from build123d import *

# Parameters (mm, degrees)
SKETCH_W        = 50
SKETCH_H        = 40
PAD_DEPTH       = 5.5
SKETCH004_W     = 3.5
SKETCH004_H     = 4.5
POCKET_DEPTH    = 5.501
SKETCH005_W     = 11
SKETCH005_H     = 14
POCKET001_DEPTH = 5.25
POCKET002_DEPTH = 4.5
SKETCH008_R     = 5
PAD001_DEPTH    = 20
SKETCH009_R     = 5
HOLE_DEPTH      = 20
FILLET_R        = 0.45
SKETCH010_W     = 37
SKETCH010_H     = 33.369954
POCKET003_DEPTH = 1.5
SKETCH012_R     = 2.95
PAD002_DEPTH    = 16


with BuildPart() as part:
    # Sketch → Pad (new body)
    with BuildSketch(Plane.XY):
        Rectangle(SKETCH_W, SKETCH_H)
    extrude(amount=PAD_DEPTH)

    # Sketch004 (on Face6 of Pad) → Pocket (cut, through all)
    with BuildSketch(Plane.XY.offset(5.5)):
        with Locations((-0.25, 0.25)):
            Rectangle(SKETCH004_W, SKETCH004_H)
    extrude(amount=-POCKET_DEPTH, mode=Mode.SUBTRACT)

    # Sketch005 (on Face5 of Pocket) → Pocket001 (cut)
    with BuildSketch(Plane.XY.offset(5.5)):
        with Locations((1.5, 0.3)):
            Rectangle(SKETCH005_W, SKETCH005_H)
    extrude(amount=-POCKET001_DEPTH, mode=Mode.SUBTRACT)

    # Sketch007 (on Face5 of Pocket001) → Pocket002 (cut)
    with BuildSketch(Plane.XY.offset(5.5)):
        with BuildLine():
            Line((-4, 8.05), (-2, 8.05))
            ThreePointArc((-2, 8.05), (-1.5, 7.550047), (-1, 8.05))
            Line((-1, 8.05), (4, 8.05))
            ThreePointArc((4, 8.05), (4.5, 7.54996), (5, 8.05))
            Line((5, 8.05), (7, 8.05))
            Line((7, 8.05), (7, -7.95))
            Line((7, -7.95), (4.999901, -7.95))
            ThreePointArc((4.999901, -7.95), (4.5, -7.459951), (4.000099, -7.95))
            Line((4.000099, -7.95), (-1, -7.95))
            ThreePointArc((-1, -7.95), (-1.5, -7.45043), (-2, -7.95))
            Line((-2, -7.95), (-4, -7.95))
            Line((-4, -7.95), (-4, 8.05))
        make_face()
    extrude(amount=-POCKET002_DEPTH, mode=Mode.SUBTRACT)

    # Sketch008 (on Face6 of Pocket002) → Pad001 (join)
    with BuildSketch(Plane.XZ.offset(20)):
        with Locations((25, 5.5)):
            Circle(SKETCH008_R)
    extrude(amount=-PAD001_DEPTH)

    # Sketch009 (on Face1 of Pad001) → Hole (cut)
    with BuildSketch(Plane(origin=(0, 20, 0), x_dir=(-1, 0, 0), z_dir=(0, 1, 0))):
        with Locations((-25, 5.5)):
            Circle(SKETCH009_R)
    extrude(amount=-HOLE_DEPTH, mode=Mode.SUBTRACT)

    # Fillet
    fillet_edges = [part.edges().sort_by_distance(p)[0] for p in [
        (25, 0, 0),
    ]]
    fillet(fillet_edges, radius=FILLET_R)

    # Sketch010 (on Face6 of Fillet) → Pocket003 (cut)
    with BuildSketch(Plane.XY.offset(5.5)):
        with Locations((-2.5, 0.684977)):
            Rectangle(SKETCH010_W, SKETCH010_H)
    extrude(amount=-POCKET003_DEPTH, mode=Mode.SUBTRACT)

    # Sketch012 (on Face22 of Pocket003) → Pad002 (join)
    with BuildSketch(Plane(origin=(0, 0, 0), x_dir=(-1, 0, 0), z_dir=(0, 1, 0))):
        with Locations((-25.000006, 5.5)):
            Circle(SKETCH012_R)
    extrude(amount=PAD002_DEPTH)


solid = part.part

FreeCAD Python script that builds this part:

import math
import FreeCAD as App
import Part
import Sketcher
from FreeCAD import Vector


def edges_at(feature, points):
    """Names of the edges that pass closest to the given points."""
    edges = feature.Shape.Edges
    near = lambda p: min(range(len(edges)), key=lambda i: edges[i].distToShape(Part.Vertex(*p))[0])
    return sorted({f"Edge{near(p) + 1}" for p in points})

doc = App.newDocument("Part")
params = doc.addObject("Spreadsheet::Sheet", "Params")
for row, (alias, value) in enumerate([
    ("sketch1_width", "50 mm"),
    ("sketch1_height", "40 mm"),
    ("pad1_length", "5.5 mm"),
    ("sketch2_width", "3.5 mm"),
    ("sketch2_height", "4.5 mm"),
    ("sketch3_width", "11 mm"),
    ("sketch3_height", "14 mm"),
    ("pocket2_length", "5.25 mm"),
    ("sketch4_radius", "0.5 mm"),
    ("sketch4_width", "2 mm"),
    ("sketch4_width2", "5 mm"),
    ("sketch4_height", "16 mm"),
    ("pocket3_length", "4.5 mm"),
    ("sketch5_diameter", "10 mm"),
    ("pad2_length", "20 mm"),
    ("sketch6_diameter", "10 mm"),
    ("pocket4_length", "20 mm"),
    ("fillet_radius", "0.45 mm"),
    ("sketch7_width", "37 mm"),
    ("pocket5_length", "1.5 mm"),
    ("sketch8_diameter", "5.9 mm"),
    ("pad3_length", "16 mm"),
], start=1):
    params.set(f"A{row}", alias)
    params.set(f"B{row}", "=" + value)
    params.setAlias(f"B{row}", alias)

body = doc.addObject("PartDesign::Body", "Body")

sketch1 = doc.addObject("Sketcher::SketchObject", "Sketch")
body.addObject(sketch1)
sketch1.AttachmentSupport = (doc.XY_Plane, [""])
sketch1.MapMode = "FlatFace"
sketch1.addGeometry(Part.LineSegment(Vector(-25, 20, 0), Vector(-25, -20, 0)), False)
sketch1.addGeometry(Part.LineSegment(Vector(-25, -20, 0), Vector(25, -20, 0)), False)
sketch1.addGeometry(Part.LineSegment(Vector(25, -20, 0), Vector(25, 20, 0)), False)
sketch1.addGeometry(Part.LineSegment(Vector(25, 20, 0), Vector(-25, 20, 0)), False)
sketch1.addConstraint(Sketcher.Constraint("Coincident", 0, 2, 1, 1))
sketch1.addConstraint(Sketcher.Constraint("Coincident", 1, 2, 2, 1))
sketch1.addConstraint(Sketcher.Constraint("Coincident", 2, 2, 3, 1))
sketch1.addConstraint(Sketcher.Constraint("Coincident", 3, 2, 0, 1))
sketch1.addConstraint(Sketcher.Constraint("Vertical", 0))
sketch1.addConstraint(Sketcher.Constraint("Horizontal", 1))
sketch1.addConstraint(Sketcher.Constraint("Vertical", 2))
sketch1.addConstraint(Sketcher.Constraint("Horizontal", 3))
sketch1.addConstraint(Sketcher.Constraint("Symmetric", 0, 2, 2, 2, -1, 1))
sketch1.addConstraint(Sketcher.Constraint("DistanceX", 1, 1, 1, 2, 50.0))
sketch1.addConstraint(Sketcher.Constraint("DistanceY", 0, 2, 0, 1, 40.0))
sketch1.setExpression("Constraints[9]", "Params.sketch1_width")
sketch1.setExpression("Constraints[10]", "Params.sketch1_height")
pad1 = doc.addObject("PartDesign::Pad", "Pad")
body.addObject(pad1)
pad1.Profile = sketch1
pad1.setExpression("Length", "Params.pad1_length")

sketch2 = doc.addObject("Sketcher::SketchObject", "Sketch001")
body.addObject(sketch2)
sketch2.AttachmentSupport = (doc.XY_Plane, [""])
sketch2.MapMode = "FlatFace"
sketch2.AttachmentOffset = App.Placement(Vector(0, 0, 5.5), App.Rotation())
sketch2.addGeometry(Part.LineSegment(Vector(-2, 2.5, 0), Vector(-2, -2, 0)), False)
sketch2.addGeometry(Part.LineSegment(Vector(-2, -2, 0), Vector(1.5, -2, 0)), False)
sketch2.addGeometry(Part.LineSegment(Vector(1.5, -2, 0), Vector(1.5, 2.5, 0)), False)
sketch2.addGeometry(Part.LineSegment(Vector(1.5, 2.5, 0), Vector(-2, 2.5, 0)), False)
sketch2.addConstraint(Sketcher.Constraint("Coincident", 0, 2, 1, 1))
sketch2.addConstraint(Sketcher.Constraint("Coincident", 1, 2, 2, 1))
sketch2.addConstraint(Sketcher.Constraint("Coincident", 2, 2, 3, 1))
sketch2.addConstraint(Sketcher.Constraint("Coincident", 3, 2, 0, 1))
sketch2.addConstraint(Sketcher.Constraint("Vertical", 0))
sketch2.addConstraint(Sketcher.Constraint("Horizontal", 1))
sketch2.addConstraint(Sketcher.Constraint("Vertical", 2))
sketch2.addConstraint(Sketcher.Constraint("Horizontal", 3))
sketch2.addConstraint(Sketcher.Constraint("DistanceX", 1, 1, 1, 2, 3.5))
sketch2.addConstraint(Sketcher.Constraint("DistanceY", 0, 2, 0, 1, 4.5))
sketch2.addConstraint(Sketcher.Constraint("DistanceX", 0, 2, -1, 1, 2.0))
sketch2.addConstraint(Sketcher.Constraint("DistanceY", 0, 2, -1, 1, 2.0))
sketch2.setExpression("Constraints[8]", "Params.sketch2_width")
sketch2.setExpression("Constraints[9]", "Params.sketch2_height")
pocket1 = doc.addObject("PartDesign::Pocket", "Pocket")
body.addObject(pocket1)
pocket1.Profile = sketch2
pocket1.Type = "ThroughAll"

sketch3 = doc.addObject("Sketcher::SketchObject", "Sketch002")
body.addObject(sketch3)
sketch3.AttachmentSupport = (doc.XY_Plane, [""])
sketch3.MapMode = "FlatFace"
sketch3.AttachmentOffset = App.Placement(Vector(0, 0, 5.5), App.Rotation())
sketch3.addGeometry(Part.LineSegment(Vector(-4, 7, 0), Vector(-4, -7, 0)), False)
sketch3.addGeometry(Part.LineSegment(Vector(-4, -7, 0), Vector(7, -7, 0)), False)
sketch3.addGeometry(Part.LineSegment(Vector(7, -7, 0), Vector(7, 7, 0)), False)
sketch3.addGeometry(Part.LineSegment(Vector(7, 7, 0), Vector(-4, 7, 0)), False)
sketch3.addConstraint(Sketcher.Constraint("Coincident", 0, 2, 1, 1))
sketch3.addConstraint(Sketcher.Constraint("Coincident", 1, 2, 2, 1))
sketch3.addConstraint(Sketcher.Constraint("Coincident", 2, 2, 3, 1))
sketch3.addConstraint(Sketcher.Constraint("Coincident", 3, 2, 0, 1))
sketch3.addConstraint(Sketcher.Constraint("Vertical", 0))
sketch3.addConstraint(Sketcher.Constraint("Horizontal", 1))
sketch3.addConstraint(Sketcher.Constraint("Vertical", 2))
sketch3.addConstraint(Sketcher.Constraint("Horizontal", 3))
sketch3.addConstraint(Sketcher.Constraint("DistanceX", 1, 1, 1, 2, 11.0))
sketch3.addConstraint(Sketcher.Constraint("DistanceY", 0, 2, 0, 1, 14.0))
sketch3.addConstraint(Sketcher.Constraint("DistanceX", 0, 2, -1, 1, 4.0))
sketch3.addConstraint(Sketcher.Constraint("DistanceY", 0, 2, -1, 1, 6.7))
sketch3.setExpression("Constraints[8]", "Params.sketch3_width")
sketch3.setExpression("Constraints[9]", "Params.sketch3_height")
pocket2 = doc.addObject("PartDesign::Pocket", "Pocket001")
body.addObject(pocket2)
pocket2.Profile = sketch3
pocket2.setExpression("Length", "Params.pocket2_length")

sketch4 = doc.addObject("Sketcher::SketchObject", "Sketch003")
body.addObject(sketch4)
sketch4.AttachmentSupport = (doc.XY_Plane, [""])
sketch4.MapMode = "FlatFace"
sketch4.AttachmentOffset = App.Placement(Vector(0, 0, 5.5), App.Rotation())
sketch4.addGeometry(Part.LineSegment(Vector(-2, 8.1, 0), Vector(-4, 8.1, 0)), False)
sketch4.addGeometry(Part.LineSegment(Vector(-4, 8.1, 0), Vector(-4, -8, 0)), False)
sketch4.addGeometry(Part.LineSegment(Vector(-4, -8, 0), Vector(-2, -8, 0)), False)
sketch4.addGeometry(Part.ArcOfCircle(Part.Circle(Vector(-1.5, -8, 0), Vector(0, 0, 1), 0.5), math.radians(0), math.radians(180)), False)
sketch4.addGeometry(Part.LineSegment(Vector(-1, -8, 0), Vector(4, -8, 0)), False)
sketch4.addGeometry(Part.ArcOfCircle(Part.Circle(Vector(4.5, -8, 0), Vector(0, 0, 1), 0.5), math.radians(1), math.radians(179)), False)
sketch4.addGeometry(Part.LineSegment(Vector(5, -8, 0), Vector(7, -8, 0)), False)
sketch4.addGeometry(Part.LineSegment(Vector(7, -8, 0), Vector(7, 8.1, 0)), False)
sketch4.addGeometry(Part.LineSegment(Vector(7, 8.1, 0), Vector(5, 8.1, 0)), False)
sketch4.addGeometry(Part.ArcOfCircle(Part.Circle(Vector(4.5, 8, 0), Vector(0, 0, 1), 0.5), math.radians(180), math.radians(360)), False)
sketch4.addGeometry(Part.LineSegment(Vector(4, 8.1, 0), Vector(-1, 8.1, 0)), False)
sketch4.addGeometry(Part.ArcOfCircle(Part.Circle(Vector(-1.5, 8.1, 0), Vector(0, 0, 1), 0.5), math.radians(-180), math.radians(0)), False)
sketch4.addConstraint(Sketcher.Constraint("Coincident", 0, 2, 1, 1))
sketch4.addConstraint(Sketcher.Constraint("Coincident", 1, 2, 2, 1))
sketch4.addConstraint(Sketcher.Constraint("Coincident", 2, 2, 3, 2))
sketch4.addConstraint(Sketcher.Constraint("Coincident", 3, 1, 4, 1))
sketch4.addConstraint(Sketcher.Constraint("Coincident", 4, 2, 5, 2))
sketch4.addConstraint(Sketcher.Constraint("Coincident", 5, 1, 6, 1))
sketch4.addConstraint(Sketcher.Constraint("Coincident", 6, 2, 7, 1))
sketch4.addConstraint(Sketcher.Constraint("Coincident", 7, 2, 8, 1))
sketch4.addConstraint(Sketcher.Constraint("Coincident", 8, 2, 9, 2))
sketch4.addConstraint(Sketcher.Constraint("Coincident", 9, 1, 10, 1))
sketch4.addConstraint(Sketcher.Constraint("Coincident", 10, 2, 11, 2))
sketch4.addConstraint(Sketcher.Constraint("Coincident", 11, 1, 0, 1))
sketch4.addConstraint(Sketcher.Constraint("Horizontal", 0))
sketch4.addConstraint(Sketcher.Constraint("Vertical", 1))
sketch4.addConstraint(Sketcher.Constraint("Horizontal", 2))
sketch4.addConstraint(Sketcher.Constraint("Horizontal", 4))
sketch4.addConstraint(Sketcher.Constraint("Horizontal", 6))
sketch4.addConstraint(Sketcher.Constraint("Vertical", 7))
sketch4.addConstraint(Sketcher.Constraint("Horizontal", 8))
sketch4.addConstraint(Sketcher.Constraint("Horizontal", 10))
sketch4.addConstraint(Sketcher.Constraint("Equal", 3, 5))
sketch4.addConstraint(Sketcher.Constraint("Equal", 5, 9))
sketch4.addConstraint(Sketcher.Constraint("Equal", 9, 11))
sketch4.addConstraint(Sketcher.Constraint("Symmetric", 0, 2, 9, 1, -2))
sketch4.addConstraint(Sketcher.Constraint("Horizontal", 2, 2, 3, 1))
sketch4.addConstraint(Sketcher.Constraint("Horizontal", 4, 2, 5, 1))
sketch4.addConstraint(Sketcher.Constraint("Horizontal", 0, 2, 7, 2))
sketch4.addConstraint(Sketcher.Constraint("Vertical", 5, 3, 9, 3))
sketch4.addConstraint(Sketcher.Constraint("Vertical", 3, 3, 11, 3))
sketch4.addConstraint(Sketcher.Constraint("Equal", 2, 8))
sketch4.addConstraint(Sketcher.Constraint("Radius", 3, 0.5))
sketch4.addConstraint(Sketcher.Constraint("DistanceX", 0, 2, 0, 1, 2.0))
sketch4.addConstraint(Sketcher.Constraint("DistanceX", 10, 2, 10, 1, 5.0))
sketch4.addConstraint(Sketcher.Constraint("DistanceY", 1, 2, 1, 1, 16.0))
sketch4.addConstraint(Sketcher.Constraint("DistanceY", -1, 1, 0, 2, 8.05))
sketch4.addConstraint(Sketcher.Constraint("DistanceY", 5, 3, 11, 3, 16.009998))
sketch4.addConstraint(Sketcher.Constraint("DistanceX", 4, 1, 4, 2, 5.000099))
sketch4.addConstraint(Sketcher.Constraint("DistanceY", 3, 3, -1, 1, 7.95043))
sketch4.addConstraint(Sketcher.Constraint("DistanceY", -1, 1, 9, 3, 8.04996))
sketch4.setExpression("Constraints[30]", "Params.sketch4_radius")
sketch4.setExpression("Constraints[31]", "Params.sketch4_width")
sketch4.setExpression("Constraints[32]", "Params.sketch4_width2")
sketch4.setExpression("Constraints[33]", "Params.sketch4_height")
pocket3 = doc.addObject("PartDesign::Pocket", "Pocket002")
body.addObject(pocket3)
pocket3.Profile = sketch4
pocket3.setExpression("Length", "Params.pocket3_length")

sketch5 = doc.addObject("Sketcher::SketchObject", "Sketch004")
body.addObject(sketch5)
sketch5.AttachmentSupport = (doc.XZ_Plane, [""])
sketch5.MapMode = "FlatFace"
sketch5.AttachmentOffset = App.Placement(Vector(0, 0, 20), App.Rotation())
sketch5.addGeometry(Part.Circle(Vector(25, 6, 0), Vector(0, 0, 1), 5), False)
sketch5.addConstraint(Sketcher.Constraint("Diameter", 0, 10.0))
sketch5.addConstraint(Sketcher.Constraint("DistanceX", -1, 1, 0, 3, 25.0))
sketch5.addConstraint(Sketcher.Constraint("DistanceY", -1, 1, 0, 3, 5.5))
sketch5.setExpression("Constraints[0]", "Params.sketch5_diameter")
pad2 = doc.addObject("PartDesign::Pad", "Pad001")
body.addObject(pad2)
pad2.Profile = sketch5
pad2.setExpression("Length", "Params.pad2_length")
pad2.Reversed = True

sketch6 = doc.addObject("Sketcher::SketchObject", "Sketch005")
body.addObject(sketch6)
sketch6.AttachmentSupport = (doc.XZ_Plane, [""])
sketch6.MapMode = "FlatFace"
sketch6.AttachmentOffset = App.Placement(Vector(0, 0, -20), App.Rotation())
sketch6.addGeometry(Part.Circle(Vector(25, 6, 0), Vector(0, 0, 1), 5), False)
sketch6.addConstraint(Sketcher.Constraint("Diameter", 0, 10.0))
sketch6.addConstraint(Sketcher.Constraint("DistanceX", -1, 1, 0, 3, 25.0))
sketch6.addConstraint(Sketcher.Constraint("DistanceY", -1, 1, 0, 3, 5.5))
sketch6.setExpression("Constraints[0]", "Params.sketch6_diameter")
pocket4 = doc.addObject("PartDesign::Pocket", "Pocket003")
body.addObject(pocket4)
pocket4.Profile = sketch6
pocket4.setExpression("Length", "Params.pocket4_length")
pocket4.Reversed = True
doc.recompute()

fillet = doc.addObject("PartDesign::Fillet", "Fillet")
body.addObject(fillet)
fillet.Base = (pocket4, edges_at(pocket4, [(25, 0, 0)]))
fillet.setExpression("Radius", "Params.fillet_radius")

sketch7 = doc.addObject("Sketcher::SketchObject", "Sketch006")
body.addObject(sketch7)
sketch7.AttachmentSupport = (doc.XY_Plane, [""])
sketch7.MapMode = "FlatFace"
sketch7.AttachmentOffset = App.Placement(Vector(0, 0, 5.5), App.Rotation())
sketch7.addGeometry(Part.LineSegment(Vector(-21, 17, 0), Vector(-21, -16, 0)), False)
sketch7.addGeometry(Part.LineSegment(Vector(-21, -16, 0), Vector(16, -16, 0)), False)
sketch7.addGeometry(Part.LineSegment(Vector(16, -16, 0), Vector(16, 17, 0)), False)
sketch7.addGeometry(Part.LineSegment(Vector(16, 17, 0), Vector(-21, 17, 0)), False)
sketch7.addConstraint(Sketcher.Constraint("Coincident", 0, 2, 1, 1))
sketch7.addConstraint(Sketcher.Constraint("Coincident", 1, 2, 2, 1))
sketch7.addConstraint(Sketcher.Constraint("Coincident", 2, 2, 3, 1))
sketch7.addConstraint(Sketcher.Constraint("Coincident", 3, 2, 0, 1))
sketch7.addConstraint(Sketcher.Constraint("Vertical", 0))
sketch7.addConstraint(Sketcher.Constraint("Horizontal", 1))
sketch7.addConstraint(Sketcher.Constraint("Vertical", 2))
sketch7.addConstraint(Sketcher.Constraint("Horizontal", 3))
sketch7.addConstraint(Sketcher.Constraint("DistanceX", 1, 1, 1, 2, 37.0))
sketch7.addConstraint(Sketcher.Constraint("DistanceX", 0, 2, -1, 1, 21.0))
sketch7.addConstraint(Sketcher.Constraint("DistanceY", 0, 2, -1, 1, 16.0))
sketch7.addConstraint(Sketcher.Constraint("DistanceY", 0, 2, 0, 1, 33.369954))
sketch7.setExpression("Constraints[8]", "Params.sketch7_width")
pocket5 = doc.addObject("PartDesign::Pocket", "Pocket004")
body.addObject(pocket5)
pocket5.Profile = sketch7
pocket5.setExpression("Length", "Params.pocket5_length")

sketch8 = doc.addObject("Sketcher::SketchObject", "Sketch007")
body.addObject(sketch8)
sketch8.AttachmentSupport = (doc.XZ_Plane, [""])
sketch8.MapMode = "FlatFace"
sketch8.addGeometry(Part.Circle(Vector(25, 5.5, 0), Vector(0, 0, 1), 3), False)
sketch8.addConstraint(Sketcher.Constraint("Diameter", 0, 5.9))
sketch8.addConstraint(Sketcher.Constraint("DistanceY", -1, 1, 0, 3, 5.5))
sketch8.addConstraint(Sketcher.Constraint("DistanceX", -1, 1, 0, 3, 25.000006))
sketch8.setExpression("Constraints[0]", "Params.sketch8_diameter")
pad3 = doc.addObject("PartDesign::Pad", "Pad002")
body.addObject(pad3)
pad3.Profile = sketch8
pad3.setExpression("Length", "Params.pad3_length")
pad3.Reversed = True

doc.recompute()
